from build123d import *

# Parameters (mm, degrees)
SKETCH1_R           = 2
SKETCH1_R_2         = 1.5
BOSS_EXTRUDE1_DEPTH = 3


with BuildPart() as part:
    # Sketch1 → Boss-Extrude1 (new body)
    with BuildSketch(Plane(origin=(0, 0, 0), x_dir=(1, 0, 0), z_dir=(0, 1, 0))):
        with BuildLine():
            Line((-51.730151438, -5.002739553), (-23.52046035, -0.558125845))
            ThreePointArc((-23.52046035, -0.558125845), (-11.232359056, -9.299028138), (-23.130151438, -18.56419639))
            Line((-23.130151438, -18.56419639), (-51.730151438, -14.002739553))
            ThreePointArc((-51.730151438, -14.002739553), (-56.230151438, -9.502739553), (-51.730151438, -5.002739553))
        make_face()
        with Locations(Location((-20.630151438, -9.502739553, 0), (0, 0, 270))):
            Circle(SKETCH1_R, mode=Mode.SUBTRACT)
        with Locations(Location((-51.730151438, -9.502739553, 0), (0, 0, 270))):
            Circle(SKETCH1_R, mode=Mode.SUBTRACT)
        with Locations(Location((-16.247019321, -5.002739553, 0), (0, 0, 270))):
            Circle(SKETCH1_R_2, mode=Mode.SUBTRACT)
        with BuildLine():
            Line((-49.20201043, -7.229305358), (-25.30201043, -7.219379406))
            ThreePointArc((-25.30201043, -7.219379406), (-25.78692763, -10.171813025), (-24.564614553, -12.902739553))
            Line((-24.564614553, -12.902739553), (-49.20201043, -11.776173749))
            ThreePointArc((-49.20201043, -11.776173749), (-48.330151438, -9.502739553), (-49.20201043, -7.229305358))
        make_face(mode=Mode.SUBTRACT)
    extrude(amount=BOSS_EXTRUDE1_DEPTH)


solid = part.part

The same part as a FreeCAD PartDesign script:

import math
import FreeCAD as App
import Part
import Sketcher

V = App.Vector
Q = App.Units.Quantity

doc = App.newDocument("Part")
params = doc.addObject("Spreadsheet::Sheet", "Params")
for row, (alias, value) in enumerate([
    ("sketch1_diameter", "4 mm"),
    ("sketch1_diameter2", "3 mm"),
    ("sketch1_radius", "4.5 mm"),
    ("sketch1_radius2", "9.4 mm"),
    ("sketch1_radius3", "5.2 mm"),
    ("pad1_length", "3 mm"),
], start=1):
    params.set(f"A{row}", alias)
    params.set(f"B{row}", "=" + value)
    params.setAlias(f"B{row}", alias)

body = doc.addObject("PartDesign::Body", "Body")

# Sketch on XZ plane
sketch1 = body.newObject("Sketcher::SketchObject", "Sketch")
sketch1.AttachmentSupport = (doc.getObject("XZ_Plane"), [""])
sketch1.MapMode = "FlatFace"
sketch1.addGeometry([
    Part.LineSegment(V(-23.5, 0.6, 0), V(-51.7, 5, 0)),  # 0
    Part.ArcOfCircle(Part.Circle(V(-51.7, 9.5, 0), V(0, 0, 1), 4.5), math.radians(90), math.radians(270)),  # 1
    Part.LineSegment(V(-51.7, 14, 0), V(-23.1, 18.6, 0)),  # 2
    Part.ArcOfCircle(Part.Circle(V(-20.6, 9.5, 0), V(0, 0, 1), 9.4), math.radians(-108), math.radians(105)),  # 3
    Part.Circle(V(-20.6, 9.5, 0), V(0, 0, 1), 2),  # 4
    Part.LineSegment(V(-49.2, 7.2, 0), V(-25.3, 7.2, 0)),  # 5
    Part.ArcOfCircle(Part.Circle(V(-20.6, 9.5, 0), V(0, 0, 1), 5.2), math.radians(139), math.radians(206)),  # 6
    Part.LineSegment(V(-24.6, 12.9, 0), V(-49.2, 11.8, 0)),  # 7
    Part.ArcOfCircle(Part.Circle(V(-51.7, 9.5, 0), V(0, 0, 1), 3.4), math.radians(-42), math.radians(42)),  # 8
    Part.Circle(V(-51.7, 9.5, 0), V(0, 0, 1), 2),  # 9
    Part.Circle(V(-16.2, 5, 0), V(0, 0, 1), 1.5),  # 10
], False)
sketch1.addConstraint([
    Sketcher.Constraint("Coincident", 0, 2, 1, 2),
    Sketcher.Constraint("Coincident", 1, 1, 2, 1),
    Sketcher.Constraint("Coincident", 2, 2, 3, 2),
    Sketcher.Constraint("Coincident", 3, 1, 0, 1),
    Sketcher.Constraint("Coincident", 5, 2, 6, 2),
    Sketcher.Constraint("Coincident", 6, 1, 7, 1),
    Sketcher.Constraint("Coincident", 7, 2, 8, 2),
    Sketcher.Constraint("Coincident", 8, 1, 5, 1),
    Sketcher.Constraint("Coincident", 4, 3, 3, 3),
    Sketcher.Constraint("Coincident", 6, 3, 3, 3),
    Sketcher.Constraint("Coincident", 8, 3, 1, 3),
    Sketcher.Constraint("Coincident", 9, 3, 1, 3),
    Sketcher.Constraint("Equal", 4, 9),
    Sketcher.Constraint("Horizontal", 1, 3, 3, 3),
    Sketcher.Constraint("Horizontal", 10, 3, 0, 2),
    Sketcher.Constraint("Vertical", 9, 3, 0, 2),
    Sketcher.Constraint("Vertical", 0, 2, 1, 1),
    Sketcher.Constraint("Vertical", 7, 2, 8, 1),
    Sketcher.Constraint("Diameter", 4, Q("4 mm")),
    Sketcher.Constraint("Diameter", 10, Q("3 mm")),
    Sketcher.Constraint("Radius", 1, Q("4.5 mm")),
    Sketcher.Constraint("Radius", 3, Q("9.4 mm")),
    Sketcher.Constraint("Radius", 6, Q("5.2 mm")),
    Sketcher.Constraint("Radius", 8, Q("3.4 mm")),
    Sketcher.Constraint("DistanceX", 1, 3, 3, 3, Q("31.1 mm")),
    Sketcher.Constraint("DistanceX", 2, 2, 6, 3, Q("2.5 mm")),
    Sketcher.Constraint("DistanceY", 6, 3, 6, 1, Q("3.4 mm")),
    Sketcher.Constraint("Distance", 7, Q("24.663139 mm")),
    Sketcher.Constraint("DistanceX", 1, 3, -1, 1, Q("51.730151 mm")),
    Sketcher.Constraint("DistanceY", -1, 1, 1, 3, Q("9.50274 mm")),
    Sketcher.Constraint("DistanceX", 10, 3, -1, 1, Q("16.247019 mm")),
    Sketcher.Constraint("DistanceX", 3, 1, -1, 1, Q("23.52046 mm")),
    Sketcher.Constraint("DistanceX", 5, 2, -1, 1, Q("25.30201 mm")),
])
sketch1.setExpression("Constraints[18]", "Params.sketch1_diameter")
sketch1.setExpression("Constraints[19]", "Params.sketch1_diameter2")
sketch1.setExpression("Constraints[20]", "Params.sketch1_radius")
sketch1.setExpression("Constraints[21]", "Params.sketch1_radius2")
sketch1.setExpression("Constraints[22]", "Params.sketch1_radius3")
pad1 = body.newObject("PartDesign::Pad", "Pad")
pad1.Profile = sketch1
pad1.setExpression("Length", "Params.pad1_length")
pad1.Reversed = True

doc.recompute()
